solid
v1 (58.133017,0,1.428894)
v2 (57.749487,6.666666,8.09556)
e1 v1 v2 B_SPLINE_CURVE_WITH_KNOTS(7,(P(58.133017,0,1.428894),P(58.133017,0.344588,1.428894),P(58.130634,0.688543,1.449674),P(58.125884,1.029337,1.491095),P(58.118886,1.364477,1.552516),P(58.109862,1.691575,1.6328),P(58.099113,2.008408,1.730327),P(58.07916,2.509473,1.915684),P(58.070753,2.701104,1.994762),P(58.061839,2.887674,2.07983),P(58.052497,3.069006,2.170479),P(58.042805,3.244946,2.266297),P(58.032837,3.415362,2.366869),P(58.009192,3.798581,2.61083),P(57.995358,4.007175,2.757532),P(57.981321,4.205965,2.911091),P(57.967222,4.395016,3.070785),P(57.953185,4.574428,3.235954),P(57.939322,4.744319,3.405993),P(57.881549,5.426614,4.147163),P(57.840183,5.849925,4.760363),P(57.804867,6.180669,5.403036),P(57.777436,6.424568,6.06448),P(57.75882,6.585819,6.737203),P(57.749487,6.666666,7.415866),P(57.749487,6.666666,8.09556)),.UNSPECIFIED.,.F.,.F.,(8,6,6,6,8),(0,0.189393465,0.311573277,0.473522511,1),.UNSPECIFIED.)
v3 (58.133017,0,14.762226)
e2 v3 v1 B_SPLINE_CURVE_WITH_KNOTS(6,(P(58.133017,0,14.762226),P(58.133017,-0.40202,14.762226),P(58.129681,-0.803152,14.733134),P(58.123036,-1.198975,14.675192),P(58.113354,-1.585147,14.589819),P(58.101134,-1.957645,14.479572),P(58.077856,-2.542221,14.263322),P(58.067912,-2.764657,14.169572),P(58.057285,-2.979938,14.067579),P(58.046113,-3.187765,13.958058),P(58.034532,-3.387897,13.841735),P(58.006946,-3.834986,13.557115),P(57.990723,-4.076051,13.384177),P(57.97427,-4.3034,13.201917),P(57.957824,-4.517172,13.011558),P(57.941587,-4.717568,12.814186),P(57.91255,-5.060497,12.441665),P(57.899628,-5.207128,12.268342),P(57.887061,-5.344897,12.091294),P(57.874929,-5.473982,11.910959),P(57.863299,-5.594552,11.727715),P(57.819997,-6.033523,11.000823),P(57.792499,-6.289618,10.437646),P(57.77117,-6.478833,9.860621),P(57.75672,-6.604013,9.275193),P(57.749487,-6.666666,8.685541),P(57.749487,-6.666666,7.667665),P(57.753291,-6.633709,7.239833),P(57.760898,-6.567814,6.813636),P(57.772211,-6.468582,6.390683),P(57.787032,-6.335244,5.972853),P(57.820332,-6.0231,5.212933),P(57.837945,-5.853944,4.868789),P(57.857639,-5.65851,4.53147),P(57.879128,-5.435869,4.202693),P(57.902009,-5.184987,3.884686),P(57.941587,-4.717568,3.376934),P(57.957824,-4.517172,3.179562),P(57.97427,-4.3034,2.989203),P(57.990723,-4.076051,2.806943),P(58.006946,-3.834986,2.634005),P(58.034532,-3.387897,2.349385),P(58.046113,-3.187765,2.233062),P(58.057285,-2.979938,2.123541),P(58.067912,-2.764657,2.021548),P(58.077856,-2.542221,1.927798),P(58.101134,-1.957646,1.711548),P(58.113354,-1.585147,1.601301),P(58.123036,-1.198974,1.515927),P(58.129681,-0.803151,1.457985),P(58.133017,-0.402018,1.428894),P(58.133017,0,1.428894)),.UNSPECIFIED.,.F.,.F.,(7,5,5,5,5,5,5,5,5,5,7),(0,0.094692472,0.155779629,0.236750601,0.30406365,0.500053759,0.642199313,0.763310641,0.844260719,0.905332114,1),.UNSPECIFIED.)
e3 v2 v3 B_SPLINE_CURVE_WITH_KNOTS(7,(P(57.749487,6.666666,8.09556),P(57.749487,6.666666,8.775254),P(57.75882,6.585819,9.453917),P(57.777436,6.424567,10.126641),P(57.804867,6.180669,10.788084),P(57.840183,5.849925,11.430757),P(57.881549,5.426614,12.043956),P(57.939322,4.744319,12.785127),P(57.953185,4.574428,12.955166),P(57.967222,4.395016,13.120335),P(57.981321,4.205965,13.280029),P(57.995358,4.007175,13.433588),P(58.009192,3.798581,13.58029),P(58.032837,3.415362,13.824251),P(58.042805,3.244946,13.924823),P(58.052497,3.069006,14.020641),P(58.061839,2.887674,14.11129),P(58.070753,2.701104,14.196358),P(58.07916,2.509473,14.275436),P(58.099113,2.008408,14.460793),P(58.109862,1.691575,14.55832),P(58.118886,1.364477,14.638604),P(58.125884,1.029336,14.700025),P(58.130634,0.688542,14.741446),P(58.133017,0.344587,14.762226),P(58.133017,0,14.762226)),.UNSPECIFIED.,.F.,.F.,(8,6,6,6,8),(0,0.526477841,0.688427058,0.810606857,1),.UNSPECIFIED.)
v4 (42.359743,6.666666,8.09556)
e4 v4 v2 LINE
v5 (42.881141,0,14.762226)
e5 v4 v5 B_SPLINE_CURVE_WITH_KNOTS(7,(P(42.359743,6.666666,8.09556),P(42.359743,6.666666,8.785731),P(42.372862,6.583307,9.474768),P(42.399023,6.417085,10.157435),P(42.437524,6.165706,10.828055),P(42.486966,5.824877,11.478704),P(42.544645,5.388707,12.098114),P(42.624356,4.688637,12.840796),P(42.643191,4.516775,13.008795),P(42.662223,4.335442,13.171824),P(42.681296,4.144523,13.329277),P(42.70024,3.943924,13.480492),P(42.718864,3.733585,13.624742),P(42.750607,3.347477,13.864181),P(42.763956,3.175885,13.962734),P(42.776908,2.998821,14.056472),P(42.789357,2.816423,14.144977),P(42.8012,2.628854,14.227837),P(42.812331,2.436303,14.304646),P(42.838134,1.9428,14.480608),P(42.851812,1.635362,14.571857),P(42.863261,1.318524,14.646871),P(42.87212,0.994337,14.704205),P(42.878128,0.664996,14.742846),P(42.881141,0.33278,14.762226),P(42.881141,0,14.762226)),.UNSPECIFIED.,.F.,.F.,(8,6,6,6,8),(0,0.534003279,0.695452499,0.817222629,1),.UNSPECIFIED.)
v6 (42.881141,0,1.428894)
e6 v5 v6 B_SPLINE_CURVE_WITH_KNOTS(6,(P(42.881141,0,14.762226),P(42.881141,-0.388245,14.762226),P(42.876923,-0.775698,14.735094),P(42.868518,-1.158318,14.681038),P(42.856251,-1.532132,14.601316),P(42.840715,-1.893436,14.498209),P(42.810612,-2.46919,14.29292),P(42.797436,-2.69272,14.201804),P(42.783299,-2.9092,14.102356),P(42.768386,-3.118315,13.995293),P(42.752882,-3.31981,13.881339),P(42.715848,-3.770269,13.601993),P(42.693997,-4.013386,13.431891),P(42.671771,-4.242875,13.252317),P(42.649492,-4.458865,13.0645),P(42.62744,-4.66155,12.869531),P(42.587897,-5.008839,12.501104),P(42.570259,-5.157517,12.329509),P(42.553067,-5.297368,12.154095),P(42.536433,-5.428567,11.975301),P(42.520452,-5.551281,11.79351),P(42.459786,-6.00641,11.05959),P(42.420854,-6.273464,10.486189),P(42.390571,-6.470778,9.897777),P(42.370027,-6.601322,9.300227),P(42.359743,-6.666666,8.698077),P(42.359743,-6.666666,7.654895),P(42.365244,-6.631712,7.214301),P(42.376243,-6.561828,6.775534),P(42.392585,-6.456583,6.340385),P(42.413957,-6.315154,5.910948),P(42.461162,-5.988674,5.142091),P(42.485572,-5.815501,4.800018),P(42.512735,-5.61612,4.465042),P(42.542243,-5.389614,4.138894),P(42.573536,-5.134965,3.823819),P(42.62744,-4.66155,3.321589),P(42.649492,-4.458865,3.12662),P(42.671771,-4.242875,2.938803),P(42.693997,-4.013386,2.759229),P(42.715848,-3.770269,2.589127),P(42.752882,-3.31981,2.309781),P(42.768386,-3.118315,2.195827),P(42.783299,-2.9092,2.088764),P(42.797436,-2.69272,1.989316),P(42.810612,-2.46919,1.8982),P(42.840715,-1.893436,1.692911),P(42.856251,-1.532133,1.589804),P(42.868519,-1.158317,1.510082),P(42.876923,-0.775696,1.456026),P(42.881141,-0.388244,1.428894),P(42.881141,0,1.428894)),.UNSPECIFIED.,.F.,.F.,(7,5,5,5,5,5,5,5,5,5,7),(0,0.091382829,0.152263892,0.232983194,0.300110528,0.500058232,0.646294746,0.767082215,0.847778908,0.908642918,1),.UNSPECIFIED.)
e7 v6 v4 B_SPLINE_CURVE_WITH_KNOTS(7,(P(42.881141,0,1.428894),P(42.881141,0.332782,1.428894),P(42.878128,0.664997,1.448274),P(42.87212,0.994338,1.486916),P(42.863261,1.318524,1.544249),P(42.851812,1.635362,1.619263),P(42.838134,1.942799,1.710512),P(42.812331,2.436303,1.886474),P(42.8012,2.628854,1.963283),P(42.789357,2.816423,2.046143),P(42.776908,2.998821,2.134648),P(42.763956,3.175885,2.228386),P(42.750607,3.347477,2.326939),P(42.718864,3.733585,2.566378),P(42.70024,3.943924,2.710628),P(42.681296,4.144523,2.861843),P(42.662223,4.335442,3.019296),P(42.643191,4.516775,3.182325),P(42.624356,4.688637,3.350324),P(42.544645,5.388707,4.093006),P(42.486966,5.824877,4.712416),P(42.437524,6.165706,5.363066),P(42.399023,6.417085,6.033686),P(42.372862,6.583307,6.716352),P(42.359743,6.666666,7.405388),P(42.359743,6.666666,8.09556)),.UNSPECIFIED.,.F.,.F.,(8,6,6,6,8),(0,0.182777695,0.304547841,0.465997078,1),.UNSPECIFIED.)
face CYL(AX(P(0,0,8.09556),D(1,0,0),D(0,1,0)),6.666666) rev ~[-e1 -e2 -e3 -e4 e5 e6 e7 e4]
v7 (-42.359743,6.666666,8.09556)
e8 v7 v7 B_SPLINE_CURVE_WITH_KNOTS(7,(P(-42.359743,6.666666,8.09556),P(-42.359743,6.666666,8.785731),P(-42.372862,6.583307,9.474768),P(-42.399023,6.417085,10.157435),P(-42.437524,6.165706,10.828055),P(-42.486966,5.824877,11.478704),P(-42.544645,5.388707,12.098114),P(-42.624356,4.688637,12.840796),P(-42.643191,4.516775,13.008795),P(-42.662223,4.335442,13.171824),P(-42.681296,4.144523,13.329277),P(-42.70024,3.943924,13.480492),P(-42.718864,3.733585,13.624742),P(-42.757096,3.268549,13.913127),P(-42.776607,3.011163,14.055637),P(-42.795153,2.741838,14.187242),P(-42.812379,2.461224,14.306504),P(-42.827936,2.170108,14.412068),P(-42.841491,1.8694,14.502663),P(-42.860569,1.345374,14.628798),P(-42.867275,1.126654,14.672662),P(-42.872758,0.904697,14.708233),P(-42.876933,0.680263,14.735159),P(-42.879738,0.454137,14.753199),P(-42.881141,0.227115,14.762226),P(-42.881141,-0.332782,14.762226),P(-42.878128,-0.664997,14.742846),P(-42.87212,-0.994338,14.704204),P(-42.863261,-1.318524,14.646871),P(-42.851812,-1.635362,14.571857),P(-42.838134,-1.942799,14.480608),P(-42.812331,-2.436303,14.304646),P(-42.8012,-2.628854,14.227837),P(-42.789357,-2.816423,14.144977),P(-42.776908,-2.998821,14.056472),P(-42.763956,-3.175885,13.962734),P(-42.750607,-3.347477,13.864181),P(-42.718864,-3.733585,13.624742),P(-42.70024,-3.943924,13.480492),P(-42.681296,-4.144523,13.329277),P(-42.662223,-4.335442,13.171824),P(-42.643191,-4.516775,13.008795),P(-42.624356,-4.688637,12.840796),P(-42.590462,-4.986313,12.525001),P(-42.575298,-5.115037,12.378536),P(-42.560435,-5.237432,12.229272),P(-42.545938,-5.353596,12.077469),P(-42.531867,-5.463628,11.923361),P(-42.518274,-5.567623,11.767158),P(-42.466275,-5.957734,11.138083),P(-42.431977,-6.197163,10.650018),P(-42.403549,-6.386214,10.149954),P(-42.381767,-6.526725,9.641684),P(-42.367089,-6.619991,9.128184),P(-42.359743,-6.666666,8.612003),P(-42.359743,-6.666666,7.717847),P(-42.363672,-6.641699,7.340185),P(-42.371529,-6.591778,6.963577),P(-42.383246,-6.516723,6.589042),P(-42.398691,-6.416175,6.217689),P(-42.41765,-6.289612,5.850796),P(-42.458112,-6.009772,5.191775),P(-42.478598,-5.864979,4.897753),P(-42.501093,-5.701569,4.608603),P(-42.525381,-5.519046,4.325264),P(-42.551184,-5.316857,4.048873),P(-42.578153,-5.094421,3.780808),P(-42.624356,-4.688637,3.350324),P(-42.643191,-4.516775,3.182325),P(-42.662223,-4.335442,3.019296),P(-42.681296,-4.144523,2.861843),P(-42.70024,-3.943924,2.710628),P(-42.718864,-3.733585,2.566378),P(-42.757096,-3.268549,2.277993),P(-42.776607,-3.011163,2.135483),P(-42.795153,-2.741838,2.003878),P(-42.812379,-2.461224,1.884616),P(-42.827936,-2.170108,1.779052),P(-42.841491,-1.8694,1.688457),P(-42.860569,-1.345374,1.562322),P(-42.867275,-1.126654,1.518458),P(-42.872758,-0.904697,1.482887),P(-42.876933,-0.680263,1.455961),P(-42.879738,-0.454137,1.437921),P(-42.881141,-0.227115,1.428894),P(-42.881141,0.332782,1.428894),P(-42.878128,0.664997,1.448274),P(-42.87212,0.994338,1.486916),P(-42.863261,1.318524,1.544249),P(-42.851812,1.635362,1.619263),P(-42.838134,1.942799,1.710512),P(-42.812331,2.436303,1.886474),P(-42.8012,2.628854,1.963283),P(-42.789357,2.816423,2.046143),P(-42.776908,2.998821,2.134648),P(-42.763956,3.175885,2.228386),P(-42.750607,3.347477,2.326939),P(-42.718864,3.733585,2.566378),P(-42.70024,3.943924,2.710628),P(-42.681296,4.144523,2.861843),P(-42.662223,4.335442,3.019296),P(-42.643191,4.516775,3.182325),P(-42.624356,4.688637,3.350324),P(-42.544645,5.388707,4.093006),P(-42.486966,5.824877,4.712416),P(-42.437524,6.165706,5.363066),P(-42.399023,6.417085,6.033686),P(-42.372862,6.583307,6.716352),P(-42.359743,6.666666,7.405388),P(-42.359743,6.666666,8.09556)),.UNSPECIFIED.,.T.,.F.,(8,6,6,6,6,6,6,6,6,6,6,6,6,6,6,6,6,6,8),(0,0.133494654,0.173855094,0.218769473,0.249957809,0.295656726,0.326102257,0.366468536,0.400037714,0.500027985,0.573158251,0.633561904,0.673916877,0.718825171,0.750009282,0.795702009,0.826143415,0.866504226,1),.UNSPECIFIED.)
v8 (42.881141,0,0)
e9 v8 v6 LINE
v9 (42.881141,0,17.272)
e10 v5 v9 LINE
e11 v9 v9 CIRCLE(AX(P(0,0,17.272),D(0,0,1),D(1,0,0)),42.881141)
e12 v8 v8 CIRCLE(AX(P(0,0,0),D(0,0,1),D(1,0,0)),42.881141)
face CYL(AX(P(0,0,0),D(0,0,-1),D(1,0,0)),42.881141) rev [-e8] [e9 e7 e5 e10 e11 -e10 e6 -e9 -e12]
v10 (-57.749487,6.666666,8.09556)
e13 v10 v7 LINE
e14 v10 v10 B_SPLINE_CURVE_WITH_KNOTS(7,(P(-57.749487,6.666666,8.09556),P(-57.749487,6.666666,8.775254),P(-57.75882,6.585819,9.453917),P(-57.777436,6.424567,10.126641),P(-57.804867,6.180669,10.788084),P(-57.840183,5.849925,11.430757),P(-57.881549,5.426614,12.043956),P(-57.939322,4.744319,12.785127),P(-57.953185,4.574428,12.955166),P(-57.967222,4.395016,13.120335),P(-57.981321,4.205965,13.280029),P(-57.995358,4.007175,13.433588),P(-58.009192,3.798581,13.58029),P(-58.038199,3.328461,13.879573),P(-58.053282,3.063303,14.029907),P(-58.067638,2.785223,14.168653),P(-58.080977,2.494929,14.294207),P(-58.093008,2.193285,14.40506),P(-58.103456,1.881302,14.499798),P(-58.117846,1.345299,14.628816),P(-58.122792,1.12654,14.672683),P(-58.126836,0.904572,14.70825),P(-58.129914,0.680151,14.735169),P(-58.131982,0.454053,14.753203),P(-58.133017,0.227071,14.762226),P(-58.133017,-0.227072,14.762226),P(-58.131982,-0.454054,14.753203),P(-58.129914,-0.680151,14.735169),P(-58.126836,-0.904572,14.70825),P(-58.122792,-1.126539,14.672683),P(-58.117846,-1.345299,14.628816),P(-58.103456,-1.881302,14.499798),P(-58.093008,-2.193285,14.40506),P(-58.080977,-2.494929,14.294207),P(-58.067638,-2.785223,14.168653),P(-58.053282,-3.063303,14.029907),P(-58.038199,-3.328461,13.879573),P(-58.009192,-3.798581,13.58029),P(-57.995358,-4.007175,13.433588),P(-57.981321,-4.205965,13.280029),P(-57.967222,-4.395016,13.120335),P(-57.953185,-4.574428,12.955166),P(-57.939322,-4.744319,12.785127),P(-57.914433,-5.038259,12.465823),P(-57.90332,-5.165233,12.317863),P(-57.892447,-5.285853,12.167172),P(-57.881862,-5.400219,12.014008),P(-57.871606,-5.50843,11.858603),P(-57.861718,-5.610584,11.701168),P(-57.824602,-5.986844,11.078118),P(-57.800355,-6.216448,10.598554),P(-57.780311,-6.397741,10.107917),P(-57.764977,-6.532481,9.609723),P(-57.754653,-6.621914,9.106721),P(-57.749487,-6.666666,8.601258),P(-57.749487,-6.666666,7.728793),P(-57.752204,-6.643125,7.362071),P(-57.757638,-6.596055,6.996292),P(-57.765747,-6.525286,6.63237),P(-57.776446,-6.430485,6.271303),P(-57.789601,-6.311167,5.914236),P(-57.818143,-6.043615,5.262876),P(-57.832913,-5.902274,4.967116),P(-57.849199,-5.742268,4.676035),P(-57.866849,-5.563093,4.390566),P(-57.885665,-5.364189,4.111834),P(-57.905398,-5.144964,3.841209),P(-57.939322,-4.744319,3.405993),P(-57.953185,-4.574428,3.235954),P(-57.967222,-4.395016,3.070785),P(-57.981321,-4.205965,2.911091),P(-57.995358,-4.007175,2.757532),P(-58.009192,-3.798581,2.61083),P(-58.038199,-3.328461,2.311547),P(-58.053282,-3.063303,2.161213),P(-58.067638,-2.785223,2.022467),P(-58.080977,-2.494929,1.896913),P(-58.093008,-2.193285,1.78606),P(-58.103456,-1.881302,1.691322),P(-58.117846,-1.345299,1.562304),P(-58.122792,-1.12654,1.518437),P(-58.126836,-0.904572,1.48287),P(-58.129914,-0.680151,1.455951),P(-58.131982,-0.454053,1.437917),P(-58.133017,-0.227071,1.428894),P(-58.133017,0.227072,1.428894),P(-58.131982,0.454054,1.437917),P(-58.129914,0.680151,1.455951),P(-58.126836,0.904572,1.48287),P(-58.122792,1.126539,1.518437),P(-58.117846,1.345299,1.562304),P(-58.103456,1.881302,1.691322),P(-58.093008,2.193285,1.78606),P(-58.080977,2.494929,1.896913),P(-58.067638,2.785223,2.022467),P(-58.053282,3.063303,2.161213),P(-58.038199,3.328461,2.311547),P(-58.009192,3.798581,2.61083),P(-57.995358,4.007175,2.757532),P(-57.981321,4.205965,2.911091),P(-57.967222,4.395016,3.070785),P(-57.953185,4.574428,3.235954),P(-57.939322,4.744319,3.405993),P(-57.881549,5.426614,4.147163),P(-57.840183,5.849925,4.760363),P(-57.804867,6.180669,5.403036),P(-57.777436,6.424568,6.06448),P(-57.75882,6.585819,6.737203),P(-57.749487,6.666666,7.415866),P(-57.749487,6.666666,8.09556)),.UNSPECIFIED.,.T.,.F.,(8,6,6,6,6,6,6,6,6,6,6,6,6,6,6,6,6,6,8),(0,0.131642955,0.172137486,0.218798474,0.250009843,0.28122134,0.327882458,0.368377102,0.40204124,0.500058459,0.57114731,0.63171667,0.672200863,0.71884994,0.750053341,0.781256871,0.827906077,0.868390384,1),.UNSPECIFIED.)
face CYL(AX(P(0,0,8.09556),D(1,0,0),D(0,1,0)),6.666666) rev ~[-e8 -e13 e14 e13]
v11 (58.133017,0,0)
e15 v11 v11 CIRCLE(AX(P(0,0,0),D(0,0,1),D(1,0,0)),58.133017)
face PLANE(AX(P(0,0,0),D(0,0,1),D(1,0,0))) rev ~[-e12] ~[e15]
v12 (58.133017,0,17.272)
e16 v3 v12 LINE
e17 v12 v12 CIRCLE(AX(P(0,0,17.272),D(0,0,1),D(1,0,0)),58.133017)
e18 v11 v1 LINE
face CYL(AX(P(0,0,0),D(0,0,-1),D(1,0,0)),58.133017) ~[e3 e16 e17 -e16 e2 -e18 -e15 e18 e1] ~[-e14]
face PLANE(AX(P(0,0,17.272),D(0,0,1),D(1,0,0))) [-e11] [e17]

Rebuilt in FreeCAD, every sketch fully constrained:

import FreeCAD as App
import Part
import Sketcher
from FreeCAD import Vector
Q = App.Units.Quantity

doc = App.newDocument("Part")
params = doc.addObject("Spreadsheet::Sheet", "Params")
for row, (alias, value) in enumerate([
    ("pad1_length", "0.68 in"),
    ("pocket1_length", "4.8 in"),
    ("pocket2_length", "6.44 in"),
], start=1):
    params.set(f"A{row}", alias)
    params.set(f"B{row}", "=" + value)
    params.setAlias(f"B{row}", alias)

body = doc.addObject("PartDesign::Body", "Body")

# Sketch on XY plane
sketch1 = body.newObject("Sketcher::SketchObject", "Sketch")
sketch1.AttachmentSupport = (doc.getObject("XY_Plane"), [""])
sketch1.MapMode = "FlatFace"
sketch1.addGeometry(Part.Circle(Vector(0, 0, 0), Vector(0, 0, 1), 58), False)
sketch1.addGeometry(Part.Circle(Vector(0, 0, 0), Vector(0, 0, 1), 43), False)
sketch1.addConstraint(Sketcher.Constraint("Coincident", 0, 3, -1, 1))
sketch1.addConstraint(Sketcher.Constraint("Coincident", 1, 3, -1, 1))
sketch1.addConstraint(Sketcher.Constraint("Diameter", 1, Q("85.762282 mm")))
sketch1.addConstraint(Sketcher.Constraint("Diameter", 0, Q("116.266034 mm")))
pad1 = body.newObject("PartDesign::Pad", "Pad")
pad1.Profile = sketch1
pad1.setExpression("Length", "Params.pad1_length")

# Sketch on YZ plane
sketch2 = body.newObject("Sketcher::SketchObject", "Sketch001")
sketch2.AttachmentSupport = (doc.getObject("YZ_Plane"), [""])
sketch2.MapMode = "FlatFace"
sketch2.addGeometry(Part.Circle(Vector(0, 8, 0), Vector(0, 0, 1), 6), False)
sketch2.addConstraint(Sketcher.Constraint("PointOnObject", 0, 3, -2))
sketch2.addConstraint(Sketcher.Constraint("Diameter", 0, Q("12.058372 mm")))
sketch2.addConstraint(Sketcher.Constraint("DistanceY", -1, 1, 0, 3, Q("8.339126 mm")))
pocket1 = body.newObject("PartDesign::Pocket", "Pocket")
pocket1.Profile = sketch2
pocket1.setExpression("Length", "Params.pocket1_length")
pocket1.Reversed = True

# Sketch on YZ plane
sketch3 = body.newObject("Sketcher::SketchObject", "Sketch002")
sketch3.AttachmentSupport = (doc.getObject("YZ_Plane"), [""])
sketch3.MapMode = "FlatFace"
sketch3.addGeometry(Part.Circle(Vector(0, 8, 0), Vector(0, 0, 1), 7), False)
sketch3.addConstraint(Sketcher.Constraint("PointOnObject", 0, 3, -2))
sketch3.addConstraint(Sketcher.Constraint("Diameter", 0, Q("13.333332 mm")))
sketch3.addConstraint(Sketcher.Constraint("DistanceY", -1, 1, 0, 3, Q("8.09556 mm")))
pocket2 = body.newObject("PartDesign::Pocket", "Pocket001")
pocket2.Profile = sketch3
pocket2.setExpression("Length", "Params.pocket2_length")
pocket2.Midplane = True

doc.recompute()
